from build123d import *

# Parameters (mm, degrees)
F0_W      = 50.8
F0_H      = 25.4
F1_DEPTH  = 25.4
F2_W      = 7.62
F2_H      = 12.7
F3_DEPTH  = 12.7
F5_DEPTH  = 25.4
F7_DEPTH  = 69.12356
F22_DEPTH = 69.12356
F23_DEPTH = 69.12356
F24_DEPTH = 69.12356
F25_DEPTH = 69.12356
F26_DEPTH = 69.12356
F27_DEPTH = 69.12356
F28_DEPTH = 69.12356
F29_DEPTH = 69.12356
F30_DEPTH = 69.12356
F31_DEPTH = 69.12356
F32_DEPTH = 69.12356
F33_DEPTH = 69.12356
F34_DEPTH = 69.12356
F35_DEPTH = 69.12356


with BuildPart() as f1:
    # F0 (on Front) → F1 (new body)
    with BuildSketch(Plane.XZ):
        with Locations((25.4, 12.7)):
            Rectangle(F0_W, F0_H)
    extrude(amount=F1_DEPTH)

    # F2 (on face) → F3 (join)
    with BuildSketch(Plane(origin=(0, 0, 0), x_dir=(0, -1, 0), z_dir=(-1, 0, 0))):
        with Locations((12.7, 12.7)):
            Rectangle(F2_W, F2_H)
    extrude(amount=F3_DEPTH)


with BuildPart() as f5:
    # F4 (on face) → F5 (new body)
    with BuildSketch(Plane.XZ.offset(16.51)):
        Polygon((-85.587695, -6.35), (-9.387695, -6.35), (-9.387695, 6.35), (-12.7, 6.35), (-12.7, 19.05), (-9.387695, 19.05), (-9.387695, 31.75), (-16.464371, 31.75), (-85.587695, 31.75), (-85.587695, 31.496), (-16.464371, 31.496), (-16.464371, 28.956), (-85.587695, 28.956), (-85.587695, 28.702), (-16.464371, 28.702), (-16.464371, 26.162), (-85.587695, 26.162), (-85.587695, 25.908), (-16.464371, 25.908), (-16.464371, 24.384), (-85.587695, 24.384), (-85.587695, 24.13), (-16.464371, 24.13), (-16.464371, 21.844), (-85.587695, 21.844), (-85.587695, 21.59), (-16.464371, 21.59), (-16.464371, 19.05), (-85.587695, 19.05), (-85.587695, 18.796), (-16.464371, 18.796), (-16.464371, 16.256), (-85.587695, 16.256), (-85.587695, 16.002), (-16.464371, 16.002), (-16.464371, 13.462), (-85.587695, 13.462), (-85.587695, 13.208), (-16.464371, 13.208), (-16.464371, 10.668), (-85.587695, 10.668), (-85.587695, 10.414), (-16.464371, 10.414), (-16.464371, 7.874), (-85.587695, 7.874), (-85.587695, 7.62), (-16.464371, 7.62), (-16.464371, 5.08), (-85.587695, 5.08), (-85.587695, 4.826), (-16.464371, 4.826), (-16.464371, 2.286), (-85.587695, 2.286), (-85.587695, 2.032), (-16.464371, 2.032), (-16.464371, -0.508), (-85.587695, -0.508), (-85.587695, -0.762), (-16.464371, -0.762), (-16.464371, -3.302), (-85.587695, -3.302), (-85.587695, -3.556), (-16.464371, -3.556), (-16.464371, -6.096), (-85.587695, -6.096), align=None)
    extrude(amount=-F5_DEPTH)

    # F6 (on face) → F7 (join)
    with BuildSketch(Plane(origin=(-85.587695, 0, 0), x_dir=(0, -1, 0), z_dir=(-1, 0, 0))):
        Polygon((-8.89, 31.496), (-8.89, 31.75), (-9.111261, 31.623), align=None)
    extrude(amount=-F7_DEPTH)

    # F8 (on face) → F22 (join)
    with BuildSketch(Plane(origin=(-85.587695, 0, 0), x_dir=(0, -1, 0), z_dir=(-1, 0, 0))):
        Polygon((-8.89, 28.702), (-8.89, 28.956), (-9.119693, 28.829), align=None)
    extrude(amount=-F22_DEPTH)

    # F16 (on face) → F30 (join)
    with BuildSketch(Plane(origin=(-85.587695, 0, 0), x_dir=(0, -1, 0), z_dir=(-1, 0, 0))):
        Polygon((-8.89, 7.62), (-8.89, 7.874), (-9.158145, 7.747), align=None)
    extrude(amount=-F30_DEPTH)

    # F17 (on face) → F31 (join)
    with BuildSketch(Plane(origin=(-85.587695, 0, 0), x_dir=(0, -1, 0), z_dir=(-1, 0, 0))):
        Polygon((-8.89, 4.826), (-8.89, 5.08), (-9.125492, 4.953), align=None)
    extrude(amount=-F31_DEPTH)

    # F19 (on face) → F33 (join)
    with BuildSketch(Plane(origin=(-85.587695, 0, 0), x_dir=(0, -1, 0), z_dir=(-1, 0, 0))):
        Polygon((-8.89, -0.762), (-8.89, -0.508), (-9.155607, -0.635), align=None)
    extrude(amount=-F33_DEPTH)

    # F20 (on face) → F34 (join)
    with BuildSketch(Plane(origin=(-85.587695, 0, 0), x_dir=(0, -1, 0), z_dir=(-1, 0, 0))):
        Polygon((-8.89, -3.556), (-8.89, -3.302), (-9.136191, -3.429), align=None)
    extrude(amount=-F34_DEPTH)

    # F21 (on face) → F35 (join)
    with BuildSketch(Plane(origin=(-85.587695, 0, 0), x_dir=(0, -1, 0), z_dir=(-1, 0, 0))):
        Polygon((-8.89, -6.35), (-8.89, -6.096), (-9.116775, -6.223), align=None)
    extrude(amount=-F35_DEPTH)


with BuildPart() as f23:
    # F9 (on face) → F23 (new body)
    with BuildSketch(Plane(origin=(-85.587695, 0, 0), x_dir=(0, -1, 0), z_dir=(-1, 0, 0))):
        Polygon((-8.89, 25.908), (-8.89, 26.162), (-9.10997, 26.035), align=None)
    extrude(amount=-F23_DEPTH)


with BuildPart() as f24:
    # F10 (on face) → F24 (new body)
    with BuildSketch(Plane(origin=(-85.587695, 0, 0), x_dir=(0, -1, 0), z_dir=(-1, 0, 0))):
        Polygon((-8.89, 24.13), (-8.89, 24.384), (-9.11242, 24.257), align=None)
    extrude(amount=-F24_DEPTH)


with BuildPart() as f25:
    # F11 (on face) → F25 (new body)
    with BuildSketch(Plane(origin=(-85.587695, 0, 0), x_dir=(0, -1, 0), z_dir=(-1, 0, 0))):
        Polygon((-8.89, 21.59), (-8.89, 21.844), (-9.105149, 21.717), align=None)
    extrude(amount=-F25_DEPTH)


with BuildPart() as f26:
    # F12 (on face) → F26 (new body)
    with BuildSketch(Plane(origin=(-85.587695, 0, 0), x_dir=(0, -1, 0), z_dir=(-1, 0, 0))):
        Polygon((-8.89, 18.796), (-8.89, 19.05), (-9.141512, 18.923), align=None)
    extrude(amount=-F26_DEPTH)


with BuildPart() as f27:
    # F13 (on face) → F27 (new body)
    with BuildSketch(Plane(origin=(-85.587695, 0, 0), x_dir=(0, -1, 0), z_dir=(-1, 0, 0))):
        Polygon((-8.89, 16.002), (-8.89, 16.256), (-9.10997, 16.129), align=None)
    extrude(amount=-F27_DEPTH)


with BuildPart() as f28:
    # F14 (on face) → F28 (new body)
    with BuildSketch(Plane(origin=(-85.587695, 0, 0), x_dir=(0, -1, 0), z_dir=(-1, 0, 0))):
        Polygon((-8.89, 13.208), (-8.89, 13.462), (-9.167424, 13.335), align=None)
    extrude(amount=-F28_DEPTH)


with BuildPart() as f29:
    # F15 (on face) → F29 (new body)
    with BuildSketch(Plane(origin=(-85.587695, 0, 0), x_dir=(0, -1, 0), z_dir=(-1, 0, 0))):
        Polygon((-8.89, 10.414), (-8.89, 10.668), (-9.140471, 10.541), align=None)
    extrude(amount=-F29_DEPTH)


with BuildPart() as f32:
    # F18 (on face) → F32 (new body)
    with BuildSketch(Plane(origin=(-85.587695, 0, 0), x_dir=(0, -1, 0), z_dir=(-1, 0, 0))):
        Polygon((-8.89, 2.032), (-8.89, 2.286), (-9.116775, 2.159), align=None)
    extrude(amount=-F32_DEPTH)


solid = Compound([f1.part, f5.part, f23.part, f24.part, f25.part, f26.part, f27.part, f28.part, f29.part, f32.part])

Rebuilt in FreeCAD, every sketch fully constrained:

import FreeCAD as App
import Part
import Sketcher

V = App.Vector
Q = App.Units.Quantity


def add_polygon(sketch, points):
    """Adds a closed chain of lines whose ends are joined by coincident constraints."""
    first, n = sketch.GeometryCount, len(points)
    for a, b in zip(points, points[1:] + points[:1]):
        sketch.addGeometry(Part.LineSegment(App.Vector(*a, 0), App.Vector(*b, 0)), False)
    for i in range(n):
        sketch.addConstraint(Sketcher.Constraint("Coincident", first + i, 2, first + (i + 1) % n, 1))

doc = App.newDocument("Part")
body = doc.addObject("PartDesign::Body", "Body")

sketch1 = body.newObject("Sketcher::SketchObject", "Sketch")
sketch1.AttachmentSupport = (doc.getObject("XZ_Plane"), [""])
sketch1.MapMode = "FlatFace"
add_polygon(sketch1, [(0, 25.4), (0, 0), (50.8, 0), (50.8, 25.4)])
sketch1.addConstraint(Sketcher.Constraint("Vertical", 0))
sketch1.addConstraint(Sketcher.Constraint("Horizontal", 1))
sketch1.addConstraint(Sketcher.Constraint("Vertical", 2))
sketch1.addConstraint(Sketcher.Constraint("Horizontal", 3))
sketch1.addConstraint(Sketcher.Constraint("Coincident", 0, 2, -1, 1))
sketch1.addConstraint(Sketcher.Constraint("DistanceX", 1, 1, 1, 2, Q("2 in")))
sketch1.addConstraint(Sketcher.Constraint("DistanceY", 0, 2, 0, 1, Q("1 in")))
pad1 = body.newObject("PartDesign::Pad", "Pad")
pad1.Profile = sketch1
pad1.Length = Q("1 in")

sketch2 = body.newObject("Sketcher::SketchObject", "Sketch001")
sketch2.AttachmentSupport = (doc.getObject("YZ_Plane"), [""])
sketch2.MapMode = "FlatFace"
add_polygon(sketch2, [(-8.89, 19.05), (-8.89, 6.35), (-16.51, 6.35), (-16.51, 19.05)])
sketch2.addConstraint(Sketcher.Constraint("Vertical", 0))
sketch2.addConstraint(Sketcher.Constraint("Horizontal", 1))
sketch2.addConstraint(Sketcher.Constraint("Vertical", 2))
sketch2.addConstraint(Sketcher.Constraint("Horizontal", 3))
sketch2.addConstraint(Sketcher.Constraint("DistanceX", 1, 2, 1, 1, Q("0.3 in")))
sketch2.addConstraint(Sketcher.Constraint("DistanceY", 0, 2, 0, 1, Q("0.5 in")))
sketch2.addConstraint(Sketcher.Constraint("DistanceX", 0, 2, -1, 1, Q("0.35 in")))
sketch2.addConstraint(Sketcher.Constraint("DistanceY", -1, 1, 0, 2, Q("0.25 in")))
pad2 = body.newObject("PartDesign::Pad", "Pad001")
pad2.Profile = sketch2
pad2.Length = Q("0.5 in")
pad2.Reversed = True
body2 = doc.addObject("PartDesign::Body", "Body001")

sketch3 = body2.newObject("Sketcher::SketchObject", "Sketch002")
sketch3.AttachmentSupport = (doc.getObject("XZ_Plane001"), [""])
sketch3.MapMode = "FlatFace"
sketch3.AttachmentOffset = App.Placement(V(0, 0, 0.65 * 25.4), App.Rotation())
add_polygon(sketch3, [(-85.587695, -6.35), (-9.387695, -6.35), (-9.387695, 6.35), (-12.7, 6.35), (-12.7, 19.05), (-9.387695, 19.05), (-9.387695, 31.75), (-85.587695, 31.75), (-85.587695, 31.496), (-16.464371, 31.496), (-16.464371, 28.956), (-85.587695, 28.956), (-85.587695, 28.702), (-16.464371, 28.702), (-16.464371, 26.162), (-85.587695, 26.162), (-85.587695, 25.908), (-16.464371, 25.908), (-16.464371, 24.384), (-85.587695, 24.384), (-85.587695, 24.13), (-16.464371, 24.13), (-16.464371, 21.844), (-85.587695, 21.844), (-85.587695, 21.59), (-16.464371, 21.59), (-16.464371, 19.05), (-85.587695, 19.05), (-85.587695, 18.796), (-16.464371, 18.796), (-16.464371, 16.256), (-85.587695, 16.256), (-85.587695, 16.002), (-16.464371, 16.002), (-16.464371, 13.462), (-85.587695, 13.462), (-85.587695, 13.208), (-16.464371, 13.208), (-16.464371, 10.668), (-85.587695, 10.668), (-85.587695, 10.414), (-16.464371, 10.414), (-16.464371, 7.874), (-85.587695, 7.874), (-85.587695, 7.62), (-16.464371, 7.62), (-16.464371, 5.08), (-85.587695, 5.08), (-85.587695, 4.826), (-16.464371, 4.826), (-16.464371, 2.286), (-85.587695, 2.286), (-85.587695, 2.032), (-16.464371, 2.032), (-16.464371, -0.508), (-85.587695, -0.508), (-85.587695, -0.762), (-16.464371, -0.762), (-16.464371, -3.302), (-85.587695, -3.302), (-85.587695, -3.556), (-16.464371, -3.556), (-16.464371, -6.096), (-85.587695, -6.096)])
sketch3.addConstraint(Sketcher.Constraint("Horizontal", 0))
sketch3.addConstraint(Sketcher.Constraint("Vertical", 1))
sketch3.addConstraint(Sketcher.Constraint("Horizontal", 2))
sketch3.addConstraint(Sketcher.Constraint("Vertical", 3))
sketch3.addConstraint(Sketcher.Constraint("Horizontal", 4))
sketch3.addConstraint(Sketcher.Constraint("Vertical", 5))
sketch3.addConstraint(Sketcher.Constraint("Horizontal", 6))
sketch3.addConstraint(Sketcher.Constraint("Vertical", 7))
sketch3.addConstraint(Sketcher.Constraint("Horizontal", 8))
sketch3.addConstraint(Sketcher.Constraint("Vertical", 9))
sketch3.addConstraint(Sketcher.Constraint("Horizontal", 10))
sketch3.addConstraint(Sketcher.Constraint("Vertical", 11))
sketch3.addConstraint(Sketcher.Constraint("Horizontal", 12))
sketch3.addConstraint(Sketcher.Constraint("Vertical", 13))
sketch3.addConstraint(Sketcher.Constraint("Horizontal", 14))
sketch3.addConstraint(Sketcher.Constraint("Vertical", 15))
sketch3.addConstraint(Sketcher.Constraint("Horizontal", 16))
sketch3.addConstraint(Sketcher.Constraint("Vertical", 17))
sketch3.addConstraint(Sketcher.Constraint("Horizontal", 18))
sketch3.addConstraint(Sketcher.Constraint("Vertical", 19))
sketch3.addConstraint(Sketcher.Constraint("Horizontal", 20))
sketch3.addConstraint(Sketcher.Constraint("Vertical", 21))
sketch3.addConstraint(Sketcher.Constraint("Horizontal", 22))
sketch3.addConstraint(Sketcher.Constraint("Vertical", 23))
sketch3.addConstraint(Sketcher.Constraint("Horizontal", 24))
sketch3.addConstraint(Sketcher.Constraint("Vertical", 25))
sketch3.addConstraint(Sketcher.Constraint("Horizontal", 26))
sketch3.addConstraint(Sketcher.Constraint("Vertical", 27))
sketch3.addConstraint(Sketcher.Constraint("Horizontal", 28))
sketch3.addConstraint(Sketcher.Constraint("Vertical", 29))
sketch3.addConstraint(Sketcher.Constraint("Horizontal", 30))
sketch3.addConstraint(Sketcher.Constraint("Vertical", 31))
sketch3.addConstraint(Sketcher.Constraint("Horizontal", 32))
sketch3.addConstraint(Sketcher.Constraint("Vertical", 33))
sketch3.addConstraint(Sketcher.Constraint("Horizontal", 34))
sketch3.addConstraint(Sketcher.Constraint("Vertical", 35))
sketch3.addConstraint(Sketcher.Constraint("Horizontal", 36))
sketch3.addConstraint(Sketcher.Constraint("Vertical", 37))
sketch3.addConstraint(Sketcher.Constraint("Horizontal", 38))
sketch3.addConstraint(Sketcher.Constraint("Vertical", 39))
sketch3.addConstraint(Sketcher.Constraint("Horizontal", 40))
sketch3.addConstraint(Sketcher.Constraint("Vertical", 41))
sketch3.addConstraint(Sketcher.Constraint("Horizontal", 42))
sketch3.addConstraint(Sketcher.Constraint("Vertical", 43))
sketch3.addConstraint(Sketcher.Constraint("Horizontal", 44))
sketch3.addConstraint(Sketcher.Constraint("Vertical", 45))
sketch3.addConstraint(Sketcher.Constraint("Horizontal", 46))
sketch3.addConstraint(Sketcher.Constraint("Vertical", 47))
sketch3.addConstraint(Sketcher.Constraint("Horizontal", 48))
sketch3.addConstraint(Sketcher.Constraint("Vertical", 49))
sketch3.addConstraint(Sketcher.Constraint("Horizontal", 50))
sketch3.addConstraint(Sketcher.Constraint("Vertical", 51))
sketch3.addConstraint(Sketcher.Constraint("Horizontal", 52))
sketch3.addConstraint(Sketcher.Constraint("Vertical", 53))
sketch3.addConstraint(Sketcher.Constraint("Horizontal", 54))
sketch3.addConstraint(Sketcher.Constraint("Vertical", 55))
sketch3.addConstraint(Sketcher.Constraint("Horizontal", 56))
sketch3.addConstraint(Sketcher.Constraint("Vertical", 57))
sketch3.addConstraint(Sketcher.Constraint("Horizontal", 58))
sketch3.addConstraint(Sketcher.Constraint("Vertical", 59))
sketch3.addConstraint(Sketcher.Constraint("Horizontal", 60))
sketch3.addConstraint(Sketcher.Constraint("Vertical", 61))
sketch3.addConstraint(Sketcher.Constraint("Horizontal", 62))
sketch3.addConstraint(Sketcher.Constraint("Vertical", 63))
sketch3.addConstraint(Sketcher.Constraint("Horizontal", 4, 2, 25, 2))
sketch3.addConstraint(Sketcher.Constraint("Vertical", 1, 2, 4, 2))
sketch3.addConstraint(Sketcher.Constraint("Vertical", 7, 2, 10, 2))
sketch3.addConstraint(Sketcher.Constraint("Vertical", 9, 2, 12, 2))
sketch3.addConstraint(Sketcher.Constraint("Vertical", 11, 2, 14, 2))
sketch3.addConstraint(Sketcher.Constraint("Vertical", 13, 2, 16, 2))
sketch3.addConstraint(Sketcher.Constraint("Vertical", 15, 2, 18, 2))
sketch3.addConstraint(Sketcher.Constraint("Vertical", 17, 2, 20, 2))
sketch3.addConstraint(Sketcher.Constraint("Vertical", 19, 2, 22, 2))
sketch3.addConstraint(Sketcher.Constraint("Vertical", 21, 2, 24, 2))
sketch3.addConstraint(Sketcher.Constraint("Vertical", 23, 2, 26, 2))
sketch3.addConstraint(Sketcher.Constraint("Vertical", 25, 2, 28, 2))
sketch3.addConstraint(Sketcher.Constraint("Vertical", 27, 2, 30, 2))
sketch3.addConstraint(Sketcher.Constraint("Vertical", 29, 2, 32, 2))
sketch3.addConstraint(Sketcher.Constraint("Vertical", 31, 2, 34, 2))
sketch3.addConstraint(Sketcher.Constraint("Vertical", 33, 2, 36, 2))
sketch3.addConstraint(Sketcher.Constraint("Vertical", 35, 2, 38, 2))
sketch3.addConstraint(Sketcher.Constraint("Vertical", 37, 2, 40, 2))
sketch3.addConstraint(Sketcher.Constraint("Vertical", 39, 2, 42, 2))
sketch3.addConstraint(Sketcher.Constraint("Vertical", 41, 2, 44, 2))
sketch3.addConstraint(Sketcher.Constraint("Vertical", 43, 2, 46, 2))
sketch3.addConstraint(Sketcher.Constraint("Vertical", 45, 2, 48, 2))
sketch3.addConstraint(Sketcher.Constraint("Vertical", 47, 2, 50, 2))
sketch3.addConstraint(Sketcher.Constraint("Vertical", 49, 2, 52, 2))
sketch3.addConstraint(Sketcher.Constraint("Vertical", 51, 2, 54, 2))
sketch3.addConstraint(Sketcher.Constraint("Vertical", 53, 2, 56, 2))
sketch3.addConstraint(Sketcher.Constraint("Vertical", 55, 2, 58, 2))
sketch3.addConstraint(Sketcher.Constraint("Vertical", 57, 2, 60, 2))
sketch3.addConstraint(Sketcher.Constraint("Vertical", 59, 2, 62, 2))
sketch3.addConstraint(Sketcher.Constraint("Equal", 1, 3))
sketch3.addConstraint(Sketcher.Constraint("Equal", 3, 5))
sketch3.addConstraint(Sketcher.Constraint("Equal", 7, 11))
sketch3.addConstraint(Sketcher.Constraint("Equal", 9, 13))
sketch3.addConstraint(Sketcher.Constraint("Equal", 11, 15))
sketch3.addConstraint(Sketcher.Constraint("Equal", 15, 19))
sketch3.addConstraint(Sketcher.Constraint("Equal", 19, 23))
sketch3.addConstraint(Sketcher.Constraint("Equal", 13, 25))
sketch3.addConstraint(Sketcher.Constraint("Equal", 23, 27))
sketch3.addConstraint(Sketcher.Constraint("Equal", 25, 29))
sketch3.addConstraint(Sketcher.Constraint("Equal", 27, 31))
sketch3.addConstraint(Sketcher.Constraint("Equal", 29, 33))
sketch3.addConstraint(Sketcher.Constraint("Equal", 31, 35))
sketch3.addConstraint(Sketcher.Constraint("Equal", 33, 37))
sketch3.addConstraint(Sketcher.Constraint("Equal", 35, 39))
sketch3.addConstraint(Sketcher.Constraint("Equal", 37, 41))
sketch3.addConstraint(Sketcher.Constraint("Equal", 39, 43))
sketch3.addConstraint(Sketcher.Constraint("Equal", 41, 45))
sketch3.addConstraint(Sketcher.Constraint("Equal", 43, 47))
sketch3.addConstraint(Sketcher.Constraint("Equal", 45, 49))
sketch3.addConstraint(Sketcher.Constraint("Equal", 47, 51))
sketch3.addConstraint(Sketcher.Constraint("Equal", 49, 53))
sketch3.addConstraint(Sketcher.Constraint("Equal", 51, 55))
sketch3.addConstraint(Sketcher.Constraint("Equal", 53, 57))
sketch3.addConstraint(Sketcher.Constraint("Equal", 55, 59))
sketch3.addConstraint(Sketcher.Constraint("Equal", 57, 61))
sketch3.addConstraint(Sketcher.Constraint("Equal", 59, 63))
sketch3.addConstraint(Sketcher.Constraint("DistanceX", 0, 1, 0, 2, Q("3 in")))
sketch3.addConstraint(Sketcher.Constraint("DistanceY", 1, 1, 1, 2, Q("0.5 in")))
sketch3.addConstraint(Sketcher.Constraint("DistanceY", 9, 2, 9, 1, Q("0.1 in")))
sketch3.addConstraint(Sketcher.Constraint("DistanceY", 17, 2, 17, 1, Q("0.06 in")))
sketch3.addConstraint(Sketcher.Constraint("DistanceX", 2, 2, -1, 1, Q("0.5 in")))
sketch3.addConstraint(Sketcher.Constraint("DistanceY", -1, 1, 43, 2, Q("0.3 in")))
sketch3.addConstraint(Sketcher.Constraint("DistanceX", 2, 2, 2, 1, 3.312305))
sketch3.addConstraint(Sketcher.Constraint("DistanceX", 8, 1, 8, 2, 69.123324))
pad3 = body2.newObject("PartDesign::Pad", "Pad002")
pad3.Profile = sketch3
pad3.Length = Q("1 in")
pad3.Reversed = True

sketch4 = body2.newObject("Sketcher::SketchObject", "Sketch003")
sketch4.AttachmentSupport = (doc.getObject("YZ_Plane001"), [""])
sketch4.MapMode = "FlatFace"
sketch4.AttachmentOffset = App.Placement(V(0, 0, -85.587695), App.Rotation())
add_polygon(sketch4, [(8.89, 31.496), (8.89, 31.75), (9.111261, 31.623)])
sketch4.addConstraint(Sketcher.Constraint("Vertical", 0))
sketch4.addConstraint(Sketcher.Constraint("Equal", 1, 2))
sketch4.addConstraint(Sketcher.Constraint("DistanceY", 0, 1, 0, 2, Q("0.01 in")))
sketch4.addConstraint(Sketcher.Constraint("DistanceX", -1, 1, 0, 2, Q("0.35 in")))
sketch4.addConstraint(Sketcher.Constraint("DistanceY", -1, 1, 0, 2, Q("1.25 in")))
sketch4.addConstraint(Sketcher.Constraint("Distance", 1, 0.255118))
pad4 = body2.newObject("PartDesign::Pad", "Pad003")
pad4.Profile = sketch4
pad4.Length = Q("2.7214 in")

sketch5 = body2.newObject("Sketcher::SketchObject", "Sketch004")
sketch5.AttachmentSupport = (doc.getObject("YZ_Plane001"), [""])
sketch5.MapMode = "FlatFace"
sketch5.AttachmentOffset = App.Placement(V(0, 0, -85.587695), App.Rotation())
add_polygon(sketch5, [(8.89, 28.702), (8.89, 28.956), (9.119693, 28.829)])
sketch5.addConstraint(Sketcher.Constraint("Vertical", 0))
sketch5.addConstraint(Sketcher.Constraint("Equal", 1, 2))
sketch5.addConstraint(Sketcher.Constraint("DistanceY", 0, 1, 0, 2, Q("0.01 in")))
sketch5.addConstraint(Sketcher.Constraint("DistanceX", -1, 1, 0, 2, Q("0.35 in")))
sketch5.addConstraint(Sketcher.Constraint("DistanceY", -1, 1, 0, 2, Q("1.14 in")))
sketch5.addConstraint(Sketcher.Constraint("Distance", 1, 0.262465))
pad5 = body2.newObject("PartDesign::Pad", "Pad004")
pad5.Profile = sketch5
pad5.Length = Q("2.7214 in")

sketch6 = body2.newObject("Sketcher::SketchObject", "Sketch005")
sketch6.AttachmentSupport = (doc.getObject("YZ_Plane001"), [""])
sketch6.MapMode = "FlatFace"
sketch6.AttachmentOffset = App.Placement(V(0, 0, -85.587695), App.Rotation())
add_polygon(sketch6, [(8.89, 7.62), (8.89, 7.874), (9.158145, 7.747)])
sketch6.addConstraint(Sketcher.Constraint("Vertical", 0))
sketch6.addConstraint(Sketcher.Constraint("Equal", 1, 2))
sketch6.addConstraint(Sketcher.Constraint("DistanceY", 0, 1, 0, 2, Q("0.01 in")))
sketch6.addConstraint(Sketcher.Constraint("DistanceY", -1, 1, 2, 2, Q("0.3 in")))
sketch6.addConstraint(Sketcher.Constraint("DistanceX", -1, 1, 0, 2, Q("0.35 in")))
sketch6.addConstraint(Sketcher.Constraint("Distance", 1, 0.2967))
pad6 = body2.newObject("PartDesign::Pad", "Pad005")
pad6.Profile = sketch6
pad6.Length = Q("2.7214 in")

sketch7 = body2.newObject("Sketcher::SketchObject", "Sketch006")
sketch7.AttachmentSupport = (doc.getObject("YZ_Plane001"), [""])
sketch7.MapMode = "FlatFace"
sketch7.AttachmentOffset = App.Placement(V(0, 0, -85.587695), App.Rotation())
add_polygon(sketch7, [(8.89, 4.826), (8.89, 5.08), (9.125492, 4.953)])
sketch7.addConstraint(Sketcher.Constraint("Vertical", 0))
sketch7.addConstraint(Sketcher.Constraint("Equal", 1, 2))
sketch7.addConstraint(Sketcher.Constraint("DistanceY", 0, 1, 0, 2, Q("0.01 in")))
sketch7.addConstraint(Sketcher.Constraint("DistanceY", -1, 1, 0, 2, Q("0.2 in")))
sketch7.addConstraint(Sketcher.Constraint("DistanceX", -1, 1, 0, 2, Q("0.35 in")))
sketch7.addConstraint(Sketcher.Constraint("DistanceX", 0, 2, 1, 2, 0.235492))
pad7 = body2.newObject("PartDesign::Pad", "Pad006")
pad7.Profile = sketch7
pad7.Length = Q("2.7214 in")

sketch8 = body2.newObject("Sketcher::SketchObject", "Sketch007")
sketch8.AttachmentSupport = (doc.getObject("YZ_Plane001"), [""])
sketch8.MapMode = "FlatFace"
sketch8.AttachmentOffset = App.Placement(V(0, 0, -85.587695), App.Rotation())
add_polygon(sketch8, [(8.89, -0.762), (8.89, -0.508), (9.155607, -0.635)])
sketch8.addConstraint(Sketcher.Constraint("Vertical", 0))
sketch8.addConstraint(Sketcher.Constraint("Equal", 1, 2))
sketch8.addConstraint(Sketcher.Constraint("DistanceY", 0, 1, 0, 2, Q("0.01 in")))
sketch8.addConstraint(Sketcher.Constraint("DistanceX", -1, 1, 0, 2, Q("0.35 in")))
sketch8.addConstraint(Sketcher.Constraint("DistanceY", 0, 2, -1, 1, Q("0.02 in")))
sketch8.addConstraint(Sketcher.Constraint("Distance", 1, 0.294408))
pad8 = body2.newObject("PartDesign::Pad", "Pad007")
pad8.Profile = sketch8
pad8.Length = Q("2.7214 in")

sketch9 = body2.newObject("Sketcher::SketchObject", "Sketch008")
sketch9.AttachmentSupport = (doc.getObject("YZ_Plane001"), [""])
sketch9.MapMode = "FlatFace"
sketch9.AttachmentOffset = App.Placement(V(0, 0, -85.587695), App.Rotation())
add_polygon(sketch9, [(8.89, -3.556), (8.89, -3.302), (9.136191, -3.429)])
sketch9.addConstraint(Sketcher.Constraint("Vertical", 0))
sketch9.addConstraint(Sketcher.Constraint("Equal", 1, 2))
sketch9.addConstraint(Sketcher.Constraint("DistanceY", 0, 1, 0, 2, Q("0.01 in")))
sketch9.addConstraint(Sketcher.Constraint("DistanceX", -1, 1, 0, 2, Q("0.35 in")))
sketch9.addConstraint(Sketcher.Constraint("DistanceY", 0, 2, -1, 1, Q("0.13 in")))
sketch9.addConstraint(Sketcher.Constraint("Distance", 1, 0.277018))
pad9 = body2.newObject("PartDesign::Pad", "Pad008")
pad9.Profile = sketch9
pad9.Length = Q("2.7214 in")

sketch10 = body2.newObject("Sketcher::SketchObject", "Sketch009")
sketch10.AttachmentSupport = (doc.getObject("YZ_Plane001"), [""])
sketch10.MapMode = "FlatFace"
sketch10.AttachmentOffset = App.Placement(V(0, 0, -85.587695), App.Rotation())
add_polygon(sketch10, [(8.89, -6.35), (8.89, -6.096), (9.116775, -6.223)])
sketch10.addConstraint(Sketcher.Constraint("Vertical", 0))
sketch10.addConstraint(Sketcher.Constraint("Equal", 1, 2))
sketch10.addConstraint(Sketcher.Constraint("DistanceY", 0, 1, 0, 2, Q("0.01 in")))
sketch10.addConstraint(Sketcher.Constraint("DistanceX", -1, 1, 0, 2, Q("0.35 in")))
sketch10.addConstraint(Sketcher.Constraint("DistanceY", 0, 2, -1, 1, Q("0.24 in")))
sketch10.addConstraint(Sketcher.Constraint("Angle", 1, Q("-29.24998 deg")))
pad10 = body2.newObject("PartDesign::Pad", "Pad009")
pad10.Profile = sketch10
pad10.Length = Q("2.7214 in")
body3 = doc.addObject("PartDesign::Body", "Body002")

sketch11 = body3.newObject("Sketcher::SketchObject", "Sketch010")
sketch11.AttachmentSupport = (doc.getObject("YZ_Plane002"), [""])
sketch11.MapMode = "FlatFace"
sketch11.AttachmentOffset = App.Placement(V(0, 0, -85.587695), App.Rotation())
add_polygon(sketch11, [(8.89, 25.908), (8.89, 26.162), (9.10997, 26.035)])
sketch11.addConstraint(Sketcher.Constraint("Vertical", 0))
sketch11.addConstraint(Sketcher.Constraint("Equal", 1, 2))
sketch11.addConstraint(Sketcher.Constraint("DistanceY", 0, 1, 0, 2, Q("0.01 in")))
sketch11.addConstraint(Sketcher.Constraint("Distance", 1, Q("0.01 in")))
sketch11.addConstraint(Sketcher.Constraint("DistanceX", -1, 1, 0, 2, Q("0.35 in")))
sketch11.addConstraint(Sketcher.Constraint("DistanceY", -1, 1, 0, 2, Q("1.03 in")))
pad11 = body3.newObject("PartDesign::Pad", "Pad010")
pad11.Profile = sketch11
pad11.Length = Q("2.7214 in")
body4 = doc.addObject("PartDesign::Body", "Body003")

sketch12 = body4.newObject("Sketcher::SketchObject", "Sketch011")
sketch12.AttachmentSupport = (doc.getObject("YZ_Plane003"), [""])
sketch12.MapMode = "FlatFace"
sketch12.AttachmentOffset = App.Placement(V(0, 0, -85.587695), App.Rotation())
add_polygon(sketch12, [(8.89, 24.13), (8.89, 24.384), (9.11242, 24.257)])
sketch12.addConstraint(Sketcher.Constraint("Vertical", 0))
sketch12.addConstraint(Sketcher.Constraint("Equal", 1, 2))
sketch12.addConstraint(Sketcher.Constraint("DistanceY", 0, 1, 0, 2, Q("0.01 in")))
sketch12.addConstraint(Sketcher.Constraint("DistanceX", -1, 1, 0, 2, Q("0.35 in")))
sketch12.addConstraint(Sketcher.Constraint("DistanceY", -1, 1, 0, 2, Q("0.96 in")))
sketch12.addConstraint(Sketcher.Constraint("DistanceX", -1, 1, 1, 2, 9.11242))
pad12 = body4.newObject("PartDesign::Pad", "Pad011")
pad12.Profile = sketch12
pad12.Length = Q("2.7214 in")
body5 = doc.addObject("PartDesign::Body", "Body004")

sketch13 = body5.newObject("Sketcher::SketchObject", "Sketch012")
sketch13.AttachmentSupport = (doc.getObject("YZ_Plane004"), [""])
sketch13.MapMode = "FlatFace"
sketch13.AttachmentOffset = App.Placement(V(0, 0, -85.587695), App.Rotation())
add_polygon(sketch13, [(8.89, 21.59), (8.89, 21.844), (9.105149, 21.717)])
sketch13.addConstraint(Sketcher.Constraint("Vertical", 0))
sketch13.addConstraint(Sketcher.Constraint("Equal", 1, 2))
sketch13.addConstraint(Sketcher.Constraint("DistanceY", 0, 1, 0, 2, Q("0.01 in")))
sketch13.addConstraint(Sketcher.Constraint("DistanceX", -1, 1, 0, 2, Q("0.35 in")))
sketch13.addConstraint(Sketcher.Constraint("DistanceY", -1, 1, 0, 2, Q("0.86 in")))
sketch13.addConstraint(Sketcher.Constraint("DistanceX", -1, 1, 1, 2, 9.105149))
pad13 = body5.newObject("PartDesign::Pad", "Pad012")
pad13.Profile = sketch13
pad13.Length = Q("2.7214 in")
body6 = doc.addObject("PartDesign::Body", "Body005")

sketch14 = body6.newObject("Sketcher::SketchObject", "Sketch013")
sketch14.AttachmentSupport = (doc.getObject("YZ_Plane005"), [""])
sketch14.MapMode = "FlatFace"
sketch14.AttachmentOffset = App.Placement(V(0, 0, -85.587695), App.Rotation())
add_polygon(sketch14, [(8.89, 18.796), (8.89, 19.05), (9.141512, 18.923)])
sketch14.addConstraint(Sketcher.Constraint("Vertical", 0))
sketch14.addConstraint(Sketcher.Constraint("Equal", 1, 2))
sketch14.addConstraint(Sketcher.Constraint("DistanceY", 0, 1, 0, 2, Q("0.01 in")))
sketch14.addConstraint(Sketcher.Constraint("DistanceX", -1, 1, 0, 2, Q("0.35 in")))
sketch14.addConstraint(Sketcher.Constraint("DistanceY", -1, 1, 0, 2, Q("0.75 in")))
sketch14.addConstraint(Sketcher.Constraint("DistanceX", 0, 2, 1, 2, 0.251512))
pad14 = body6.newObject("PartDesign::Pad", "Pad013")
pad14.Profile = sketch14
pad14.Length = Q("2.7214 in")
body7 = doc.addObject("PartDesign::Body", "Body006")

sketch15 = body7.newObject("Sketcher::SketchObject", "Sketch014")
sketch15.AttachmentSupport = (doc.getObject("YZ_Plane006"), [""])
sketch15.MapMode = "FlatFace"
sketch15.AttachmentOffset = App.Placement(V(0, 0, -85.587695), App.Rotation())
add_polygon(sketch15, [(8.89, 16.002), (8.89, 16.256), (9.10997, 16.129)])
sketch15.addConstraint(Sketcher.Constraint("Vertical", 0))
sketch15.addConstraint(Sketcher.Constraint("Equal", 1, 2))
sketch15.addConstraint(Sketcher.Constraint("DistanceY", 0, 1, 0, 2, Q("0.01 in")))
sketch15.addConstraint(Sketcher.Constraint("Distance", 1, Q("0.01 in")))
sketch15.addConstraint(Sketcher.Constraint("DistanceX", -1, 1, 0, 2, Q("0.35 in")))
sketch15.addConstraint(Sketcher.Constraint("DistanceY", -1, 1, 0, 2, Q("0.64 in")))
pad15 = body7.newObject("PartDesign::Pad", "Pad014")
pad15.Profile = sketch15
pad15.Length = Q("2.7214 in")
body8 = doc.addObject("PartDesign::Body", "Body007")

sketch16 = body8.newObject("Sketcher::SketchObject", "Sketch015")
sketch16.AttachmentSupport = (doc.getObject("YZ_Plane007"), [""])
sketch16.MapMode = "FlatFace"
sketch16.AttachmentOffset = App.Placement(V(0, 0, -85.587695), App.Rotation())
add_polygon(sketch16, [(8.89, 13.208), (8.89, 13.462), (9.167424, 13.335)])
sketch16.addConstraint(Sketcher.Constraint("Vertical", 0))
sketch16.addConstraint(Sketcher.Constraint("Equal", 1, 2))
sketch16.addConstraint(Sketcher.Constraint("DistanceY", 0, 1, 0, 2, Q("0.01 in")))
sketch16.addConstraint(Sketcher.Constraint("DistanceX", -1, 1, 0, 2, Q("0.35 in")))
sketch16.addConstraint(Sketcher.Constraint("DistanceY", -1, 1, 0, 2, Q("0.53 in")))
sketch16.addConstraint(Sketcher.Constraint("Distance", 1, 0.305112))
pad16 = body8.newObject("PartDesign::Pad", "Pad015")
pad16.Profile = sketch16
pad16.Length = Q("2.7214 in")
body9 = doc.addObject("PartDesign::Body", "Body008")

sketch17 = body9.newObject("Sketcher::SketchObject", "Sketch016")
sketch17.AttachmentSupport = (doc.getObject("YZ_Plane008"), [""])
sketch17.MapMode = "FlatFace"
sketch17.AttachmentOffset = App.Placement(V(0, 0, -85.587695), App.Rotation())
add_polygon(sketch17, [(8.89, 10.414), (8.89, 10.668), (9.140471, 10.541)])
sketch17.addConstraint(Sketcher.Constraint("Vertical", 0))
sketch17.addConstraint(Sketcher.Constraint("Equal", 1, 2))
sketch17.addConstraint(Sketcher.Constraint("DistanceY", 0, 1, 0, 2, Q("0.01 in")))
sketch17.addConstraint(Sketcher.Constraint("DistanceX", -1, 1, 0, 2, Q("0.35 in")))
sketch17.addConstraint(Sketcher.Constraint("DistanceY", -1, 1, 0, 2, Q("0.42 in")))
sketch17.addConstraint(Sketcher.Constraint("Distance", 1, 0.280829))
pad17 = body9.newObject("PartDesign::Pad", "Pad016")
pad17.Profile = sketch17
pad17.Length = Q("2.7214 in")
body10 = doc.addObject("PartDesign::Body", "Body009")

sketch18 = body10.newObject("Sketcher::SketchObject", "Sketch017")
sketch18.AttachmentSupport = (doc.getObject("YZ_Plane009"), [""])
sketch18.MapMode = "FlatFace"
sketch18.AttachmentOffset = App.Placement(V(0, 0, -85.587695), App.Rotation())
add_polygon(sketch18, [(8.89, 2.032), (8.89, 2.286), (9.116775, 2.159)])
sketch18.addConstraint(Sketcher.Constraint("Vertical", 0))
sketch18.addConstraint(Sketcher.Constraint("Equal", 1, 2))
sketch18.addConstraint(Sketcher.Constraint("DistanceY", 0, 1, 0, 2, Q("0.01 in")))
sketch18.addConstraint(Sketcher.Constraint("DistanceX", -1, 1, 0, 2, Q("0.35 in")))
sketch18.addConstraint(Sketcher.Constraint("DistanceY", -1, 1, 0, 2, Q("0.09 in")))
sketch18.addConstraint(Sketcher.Constraint("Angle", 1, Q("-29.24998 deg")))
pad18 = body10.newObject("PartDesign::Pad", "Pad017")
pad18.Profile = sketch18
pad18.Length = Q("2.7214 in")

doc.recompute()
